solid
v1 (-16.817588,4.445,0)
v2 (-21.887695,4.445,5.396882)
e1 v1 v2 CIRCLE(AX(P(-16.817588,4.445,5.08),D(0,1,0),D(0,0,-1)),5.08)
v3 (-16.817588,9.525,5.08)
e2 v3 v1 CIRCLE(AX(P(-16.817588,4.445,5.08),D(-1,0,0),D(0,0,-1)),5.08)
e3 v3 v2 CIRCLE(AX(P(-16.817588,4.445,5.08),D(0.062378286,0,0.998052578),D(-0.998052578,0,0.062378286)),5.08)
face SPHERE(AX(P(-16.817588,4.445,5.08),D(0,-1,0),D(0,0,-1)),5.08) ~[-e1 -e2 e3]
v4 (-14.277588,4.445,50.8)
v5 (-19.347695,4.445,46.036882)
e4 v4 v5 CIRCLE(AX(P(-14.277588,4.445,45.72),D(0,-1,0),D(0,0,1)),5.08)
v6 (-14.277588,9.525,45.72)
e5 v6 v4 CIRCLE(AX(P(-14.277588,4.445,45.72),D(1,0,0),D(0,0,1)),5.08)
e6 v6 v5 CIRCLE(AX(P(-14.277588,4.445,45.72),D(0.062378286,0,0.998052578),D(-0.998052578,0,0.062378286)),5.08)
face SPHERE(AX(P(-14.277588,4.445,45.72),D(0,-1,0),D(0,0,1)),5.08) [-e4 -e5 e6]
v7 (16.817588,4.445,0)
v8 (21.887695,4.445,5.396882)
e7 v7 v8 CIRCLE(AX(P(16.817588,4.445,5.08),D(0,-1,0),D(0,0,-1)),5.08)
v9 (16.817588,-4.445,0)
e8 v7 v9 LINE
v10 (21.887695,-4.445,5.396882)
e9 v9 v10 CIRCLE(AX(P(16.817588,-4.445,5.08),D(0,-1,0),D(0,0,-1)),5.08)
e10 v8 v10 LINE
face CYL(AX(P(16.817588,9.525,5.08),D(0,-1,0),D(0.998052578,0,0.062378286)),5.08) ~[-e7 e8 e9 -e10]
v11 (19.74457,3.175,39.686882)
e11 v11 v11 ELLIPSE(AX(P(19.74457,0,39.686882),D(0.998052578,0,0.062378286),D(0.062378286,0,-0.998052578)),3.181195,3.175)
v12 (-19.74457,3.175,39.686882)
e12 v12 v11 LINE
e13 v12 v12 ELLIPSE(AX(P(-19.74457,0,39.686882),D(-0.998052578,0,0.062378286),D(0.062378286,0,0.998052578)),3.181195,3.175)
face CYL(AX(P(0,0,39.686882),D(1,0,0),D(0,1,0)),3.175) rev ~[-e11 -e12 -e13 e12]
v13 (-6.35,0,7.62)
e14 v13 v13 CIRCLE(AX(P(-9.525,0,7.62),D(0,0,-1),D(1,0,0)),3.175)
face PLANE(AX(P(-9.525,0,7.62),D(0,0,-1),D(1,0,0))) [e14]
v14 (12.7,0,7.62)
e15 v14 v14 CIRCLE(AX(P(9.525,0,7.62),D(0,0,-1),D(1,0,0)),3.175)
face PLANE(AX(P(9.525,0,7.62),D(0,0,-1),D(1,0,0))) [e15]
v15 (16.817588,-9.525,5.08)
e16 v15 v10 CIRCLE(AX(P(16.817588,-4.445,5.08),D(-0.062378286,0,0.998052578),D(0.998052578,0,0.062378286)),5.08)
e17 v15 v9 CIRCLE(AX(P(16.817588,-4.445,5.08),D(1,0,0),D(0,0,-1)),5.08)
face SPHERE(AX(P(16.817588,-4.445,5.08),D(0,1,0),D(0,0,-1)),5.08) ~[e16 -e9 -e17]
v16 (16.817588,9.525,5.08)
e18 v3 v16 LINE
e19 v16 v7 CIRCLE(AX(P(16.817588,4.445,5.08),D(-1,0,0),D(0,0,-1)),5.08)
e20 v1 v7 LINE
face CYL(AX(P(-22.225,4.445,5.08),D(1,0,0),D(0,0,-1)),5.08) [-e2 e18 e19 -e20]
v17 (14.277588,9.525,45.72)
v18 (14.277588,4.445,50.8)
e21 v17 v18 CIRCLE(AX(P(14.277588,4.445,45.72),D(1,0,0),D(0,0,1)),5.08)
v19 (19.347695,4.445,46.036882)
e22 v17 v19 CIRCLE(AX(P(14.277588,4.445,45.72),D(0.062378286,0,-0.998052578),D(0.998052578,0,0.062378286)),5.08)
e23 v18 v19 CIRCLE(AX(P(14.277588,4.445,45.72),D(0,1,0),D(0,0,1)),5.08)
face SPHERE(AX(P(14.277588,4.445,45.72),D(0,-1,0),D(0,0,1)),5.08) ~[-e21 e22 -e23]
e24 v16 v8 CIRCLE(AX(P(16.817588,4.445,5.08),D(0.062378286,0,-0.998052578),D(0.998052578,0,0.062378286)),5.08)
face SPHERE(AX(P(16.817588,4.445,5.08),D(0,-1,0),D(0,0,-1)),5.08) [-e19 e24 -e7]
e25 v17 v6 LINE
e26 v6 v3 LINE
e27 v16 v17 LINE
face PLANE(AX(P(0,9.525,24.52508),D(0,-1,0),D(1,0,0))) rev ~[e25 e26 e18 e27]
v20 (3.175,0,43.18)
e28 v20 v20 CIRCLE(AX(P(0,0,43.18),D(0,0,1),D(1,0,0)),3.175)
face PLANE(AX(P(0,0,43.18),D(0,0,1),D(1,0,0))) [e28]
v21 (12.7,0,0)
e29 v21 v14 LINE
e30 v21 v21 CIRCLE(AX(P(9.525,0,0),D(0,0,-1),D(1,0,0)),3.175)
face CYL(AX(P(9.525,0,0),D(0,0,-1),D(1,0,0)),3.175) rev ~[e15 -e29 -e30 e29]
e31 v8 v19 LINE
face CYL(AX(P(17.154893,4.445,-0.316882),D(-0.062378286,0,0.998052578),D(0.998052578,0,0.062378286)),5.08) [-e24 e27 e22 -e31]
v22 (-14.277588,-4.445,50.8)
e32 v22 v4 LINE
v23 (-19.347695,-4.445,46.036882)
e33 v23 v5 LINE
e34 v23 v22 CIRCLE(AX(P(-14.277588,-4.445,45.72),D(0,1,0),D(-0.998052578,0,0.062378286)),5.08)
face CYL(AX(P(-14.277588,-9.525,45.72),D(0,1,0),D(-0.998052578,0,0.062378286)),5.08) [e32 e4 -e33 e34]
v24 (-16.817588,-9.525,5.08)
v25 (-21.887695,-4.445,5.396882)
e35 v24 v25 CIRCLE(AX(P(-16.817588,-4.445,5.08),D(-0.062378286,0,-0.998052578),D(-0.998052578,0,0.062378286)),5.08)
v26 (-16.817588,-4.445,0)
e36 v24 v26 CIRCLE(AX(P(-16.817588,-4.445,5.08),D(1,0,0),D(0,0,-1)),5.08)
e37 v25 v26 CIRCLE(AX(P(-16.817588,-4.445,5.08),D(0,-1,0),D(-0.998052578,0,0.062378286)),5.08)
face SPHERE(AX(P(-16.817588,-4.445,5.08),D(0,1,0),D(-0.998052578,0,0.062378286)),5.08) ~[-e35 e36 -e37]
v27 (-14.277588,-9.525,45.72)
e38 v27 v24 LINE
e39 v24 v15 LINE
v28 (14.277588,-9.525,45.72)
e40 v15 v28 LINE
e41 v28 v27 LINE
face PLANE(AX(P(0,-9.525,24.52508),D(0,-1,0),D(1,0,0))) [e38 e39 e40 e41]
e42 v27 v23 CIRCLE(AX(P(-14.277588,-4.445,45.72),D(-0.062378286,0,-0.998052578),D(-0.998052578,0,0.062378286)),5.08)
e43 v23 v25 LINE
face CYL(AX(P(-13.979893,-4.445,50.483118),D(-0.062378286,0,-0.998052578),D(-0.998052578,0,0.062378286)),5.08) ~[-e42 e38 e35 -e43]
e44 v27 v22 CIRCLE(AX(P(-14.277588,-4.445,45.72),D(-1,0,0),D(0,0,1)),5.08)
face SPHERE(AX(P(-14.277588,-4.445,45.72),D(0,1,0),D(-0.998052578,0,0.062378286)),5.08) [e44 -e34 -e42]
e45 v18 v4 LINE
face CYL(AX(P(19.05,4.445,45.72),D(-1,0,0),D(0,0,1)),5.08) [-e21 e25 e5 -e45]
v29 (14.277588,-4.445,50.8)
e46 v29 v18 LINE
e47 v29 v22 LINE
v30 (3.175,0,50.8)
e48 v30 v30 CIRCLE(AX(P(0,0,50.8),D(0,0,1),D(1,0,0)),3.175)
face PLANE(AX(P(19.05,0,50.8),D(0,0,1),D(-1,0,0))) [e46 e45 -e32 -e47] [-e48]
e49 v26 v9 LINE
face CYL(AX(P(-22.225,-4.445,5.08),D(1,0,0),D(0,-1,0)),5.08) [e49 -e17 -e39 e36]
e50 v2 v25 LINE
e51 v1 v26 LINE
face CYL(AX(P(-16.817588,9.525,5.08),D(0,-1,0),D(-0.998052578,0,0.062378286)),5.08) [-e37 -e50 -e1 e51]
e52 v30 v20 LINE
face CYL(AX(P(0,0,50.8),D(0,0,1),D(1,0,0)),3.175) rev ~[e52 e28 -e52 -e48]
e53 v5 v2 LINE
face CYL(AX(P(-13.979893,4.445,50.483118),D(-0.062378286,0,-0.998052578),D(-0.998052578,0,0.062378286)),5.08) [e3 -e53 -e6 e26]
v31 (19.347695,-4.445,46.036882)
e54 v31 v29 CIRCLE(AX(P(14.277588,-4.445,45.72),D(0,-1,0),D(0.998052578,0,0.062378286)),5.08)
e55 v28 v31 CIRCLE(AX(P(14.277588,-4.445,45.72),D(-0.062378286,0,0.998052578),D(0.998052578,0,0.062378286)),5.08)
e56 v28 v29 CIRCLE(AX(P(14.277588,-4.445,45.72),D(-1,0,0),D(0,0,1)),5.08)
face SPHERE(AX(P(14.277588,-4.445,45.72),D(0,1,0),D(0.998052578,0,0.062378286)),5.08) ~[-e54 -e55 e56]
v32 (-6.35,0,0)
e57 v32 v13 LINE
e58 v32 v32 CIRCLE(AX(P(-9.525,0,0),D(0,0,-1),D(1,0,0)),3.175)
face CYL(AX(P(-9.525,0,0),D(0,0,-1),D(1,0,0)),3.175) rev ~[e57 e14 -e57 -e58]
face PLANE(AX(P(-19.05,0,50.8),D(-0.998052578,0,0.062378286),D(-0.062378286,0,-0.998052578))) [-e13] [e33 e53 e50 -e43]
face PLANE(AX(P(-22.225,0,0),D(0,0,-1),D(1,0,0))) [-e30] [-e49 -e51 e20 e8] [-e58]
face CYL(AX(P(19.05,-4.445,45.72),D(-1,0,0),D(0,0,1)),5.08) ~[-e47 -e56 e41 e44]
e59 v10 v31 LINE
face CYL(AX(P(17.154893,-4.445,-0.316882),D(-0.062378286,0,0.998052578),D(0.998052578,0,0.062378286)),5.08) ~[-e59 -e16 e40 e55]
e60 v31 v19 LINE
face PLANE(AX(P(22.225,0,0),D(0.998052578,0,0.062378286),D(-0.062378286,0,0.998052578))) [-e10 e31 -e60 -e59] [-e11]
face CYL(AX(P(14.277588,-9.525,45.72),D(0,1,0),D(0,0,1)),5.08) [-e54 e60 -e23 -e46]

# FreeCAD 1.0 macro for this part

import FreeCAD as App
import Part
import Sketcher

V = App.Vector
Q = App.Units.Quantity

doc = App.newDocument("Part")
body = doc.addObject("PartDesign::Body", "Body")

sketch1 = body.newObject("Sketcher::SketchObject", "Sketch")
sketch1.AttachmentSupport = (doc.getObject("XZ_Plane"), [""])
sketch1.MapMode = "FlatFace"
sketch1.addGeometry(Part.LineSegment(V(-19, 51, 0), V(-22, 0, 0)), False)
sketch1.addGeometry(Part.LineSegment(V(-22, 0, 0), V(22, 0, 0)), False)
sketch1.addGeometry(Part.LineSegment(V(22, 0, 0), V(19, 51, 0)), False)
sketch1.addGeometry(Part.LineSegment(V(19, 51, 0), V(-19, 51, 0)), False)
sketch1.addConstraint(Sketcher.Constraint("Coincident", 0, 2, 1, 1))
sketch1.addConstraint(Sketcher.Constraint("Coincident", 1, 2, 2, 1))
sketch1.addConstraint(Sketcher.Constraint("Coincident", 2, 2, 3, 1))
sketch1.addConstraint(Sketcher.Constraint("Coincident", 3, 2, 0, 1))
sketch1.addConstraint(Sketcher.Constraint("Horizontal", 1))
sketch1.addConstraint(Sketcher.Constraint("Horizontal", 3))
sketch1.addConstraint(Sketcher.Constraint("Symmetric", 0, 2, 1, 2, -1, 1))
sketch1.addConstraint(Sketcher.Constraint("Equal", 0, 2))
sketch1.addConstraint(Sketcher.Constraint("DistanceX", 3, 2, 3, 1, Q("1.5 in")))
sketch1.addConstraint(Sketcher.Constraint("DistanceY", -1, 1, 2, 2, Q("2 in")))
sketch1.addConstraint(Sketcher.Constraint("DistanceX", 1, 1, 1, 2, Q("1.75 in")))
pad1 = body.newObject("PartDesign::Pad", "Pad")
pad1.Profile = sketch1
pad1.Length = Q("0.75 in")
pad1.Midplane = True
doc.recompute()

fillet = body.newObject("PartDesign::Fillet", "Fillet")
fillet.Base = (pad1, ["Edge1"])
fillet.UseAllEdges = True
fillet.Radius = Q("0.2 in")

sketch2 = body.newObject("Sketcher::SketchObject", "Sketch001")
sketch2.AttachmentSupport = (doc.getObject("YZ_Plane"), [""])
sketch2.MapMode = "FlatFace"
sketch2.addGeometry(Part.Circle(V(0, 39.7, 0), V(0, 0, 1), 3.2), False)
sketch2.addConstraint(Sketcher.Constraint("PointOnObject", 0, 3, -2))
sketch2.addConstraint(Sketcher.Constraint("Diameter", 0, Q("0.25 in")))
sketch2.addConstraint(Sketcher.Constraint("DistanceY", -1, 1, 0, 3, 39.686882))
pocket1 = body.newObject("PartDesign::Pocket", "Pocket")
pocket1.Profile = sketch2
pocket1.Length = Q("2 in")
pocket1.Midplane = True

sketch3 = body.newObject("Sketcher::SketchObject", "Sketch002")
sketch3.AttachmentSupport = (doc.getObject("XY_Plane"), [""])
sketch3.MapMode = "FlatFace"
sketch3.AttachmentOffset = App.Placement(V(0, 0, 2 * 25.4), App.Rotation())
sketch3.addGeometry(Part.Circle(V(0, 0, 0), V(0, 0, 1), 3.2), False)
sketch3.addConstraint(Sketcher.Constraint("Coincident", 0, 3, -1, 1))
sketch3.addConstraint(Sketcher.Constraint("Diameter", 0, Q("0.25 in")))
pocket2 = body.newObject("PartDesign::Pocket", "Pocket001")
pocket2.Profile = sketch3
pocket2.Length = Q("0.3 in")

sketch4 = body.newObject("Sketcher::SketchObject", "Sketch003")
sketch4.AttachmentSupport = (doc.getObject("XY_Plane"), [""])
sketch4.MapMode = "FlatFace"
sketch4.addGeometry(Part.Circle(V(-9.5, 0, 0), V(0, 0, 1), 3.2), False)
sketch4.addGeometry(Part.Circle(V(9.5, 0, 0), V(0, 0, 1), 3.2), False)
sketch4.addConstraint(Sketcher.Constraint("Equal", 0, 1))
sketch4.addConstraint(Sketcher.Constraint("Symmetric", 0, 3, 1, 3, -1, 1))
sketch4.addConstraint(Sketcher.Constraint("PointOnObject", 0, 3, -1))
sketch4.addConstraint(Sketcher.Constraint("Diameter", 0, Q("0.25 in")))
sketch4.addConstraint(Sketcher.Constraint("DistanceX", 0, 3, 1, 3, Q("0.75 in")))
pocket3 = body.newObject("PartDesign::Pocket", "Pocket002")
pocket3.Profile = sketch4
pocket3.Length = Q("0.3 in")
pocket3.Reversed = True

doc.recompute()
